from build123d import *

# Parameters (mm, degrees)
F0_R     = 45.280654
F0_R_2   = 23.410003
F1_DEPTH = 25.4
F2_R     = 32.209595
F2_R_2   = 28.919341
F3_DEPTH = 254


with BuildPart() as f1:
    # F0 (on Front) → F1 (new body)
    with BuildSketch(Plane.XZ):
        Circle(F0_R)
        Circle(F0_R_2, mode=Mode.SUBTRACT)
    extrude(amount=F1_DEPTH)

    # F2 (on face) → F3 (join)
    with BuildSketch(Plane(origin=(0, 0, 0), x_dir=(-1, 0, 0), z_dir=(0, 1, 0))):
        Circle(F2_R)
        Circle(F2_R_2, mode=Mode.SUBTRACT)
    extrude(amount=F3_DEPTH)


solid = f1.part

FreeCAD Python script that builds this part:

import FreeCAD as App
import Part
import Sketcher
Q = App.Units.Quantity

doc = App.newDocument("Part")
body = doc.addObject("PartDesign::Body", "Body")

# Sketch on XZ plane
sketch1 = body.newObject("Sketcher::SketchObject", "Sketch")
sketch1.AttachmentSupport = (doc.getObject("XZ_Plane"), [""])
sketch1.MapMode = "FlatFace"
sketch1.addGeometry([
    Part.Circle(App.Vector(0, 0, 0), App.Vector(0, 0, 1), 45),
    Part.Circle(App.Vector(0, 0, 0), App.Vector(0, 0, 1), 23),
], False)
sketch1.addConstraint([
    Sketcher.Constraint("Coincident", 0, 3, -1, 1),
    Sketcher.Constraint("Coincident", 1, 3, -1, 1),
    Sketcher.Constraint("Diameter", 0, Q("90.561308 mm")),
    Sketcher.Constraint("Diameter", 1, Q("46.820006 mm")),
])
pad1 = body.newObject("PartDesign::Pad", "Pad")
pad1.Profile = sketch1
pad1.Length = Q("1 in")

# Sketch on XZ plane
sketch2 = body.newObject("Sketcher::SketchObject", "Sketch001")
sketch2.AttachmentSupport = (doc.getObject("XZ_Plane"), [""])
sketch2.MapMode = "FlatFace"
sketch2.addGeometry([
    Part.Circle(App.Vector(0, 0, 0), App.Vector(0, 0, 1), 32),
    Part.Circle(App.Vector(0, 0, 0), App.Vector(0, 0, 1), 29),
], False)
sketch2.addConstraint([
    Sketcher.Constraint("Coincident", 0, 3, -1, 1),
    Sketcher.Constraint("Coincident", 1, 3, -1, 1),
    Sketcher.Constraint("Diameter", 0, Q("64.41919 mm")),
    Sketcher.Constraint("Diameter", 1, Q("57.838682 mm")),
])
pad2 = body.newObject("PartDesign::Pad", "Pad001")
pad2.Profile = sketch2
pad2.Length = Q("10 in")
pad2.Reversed = True

doc.recompute()
